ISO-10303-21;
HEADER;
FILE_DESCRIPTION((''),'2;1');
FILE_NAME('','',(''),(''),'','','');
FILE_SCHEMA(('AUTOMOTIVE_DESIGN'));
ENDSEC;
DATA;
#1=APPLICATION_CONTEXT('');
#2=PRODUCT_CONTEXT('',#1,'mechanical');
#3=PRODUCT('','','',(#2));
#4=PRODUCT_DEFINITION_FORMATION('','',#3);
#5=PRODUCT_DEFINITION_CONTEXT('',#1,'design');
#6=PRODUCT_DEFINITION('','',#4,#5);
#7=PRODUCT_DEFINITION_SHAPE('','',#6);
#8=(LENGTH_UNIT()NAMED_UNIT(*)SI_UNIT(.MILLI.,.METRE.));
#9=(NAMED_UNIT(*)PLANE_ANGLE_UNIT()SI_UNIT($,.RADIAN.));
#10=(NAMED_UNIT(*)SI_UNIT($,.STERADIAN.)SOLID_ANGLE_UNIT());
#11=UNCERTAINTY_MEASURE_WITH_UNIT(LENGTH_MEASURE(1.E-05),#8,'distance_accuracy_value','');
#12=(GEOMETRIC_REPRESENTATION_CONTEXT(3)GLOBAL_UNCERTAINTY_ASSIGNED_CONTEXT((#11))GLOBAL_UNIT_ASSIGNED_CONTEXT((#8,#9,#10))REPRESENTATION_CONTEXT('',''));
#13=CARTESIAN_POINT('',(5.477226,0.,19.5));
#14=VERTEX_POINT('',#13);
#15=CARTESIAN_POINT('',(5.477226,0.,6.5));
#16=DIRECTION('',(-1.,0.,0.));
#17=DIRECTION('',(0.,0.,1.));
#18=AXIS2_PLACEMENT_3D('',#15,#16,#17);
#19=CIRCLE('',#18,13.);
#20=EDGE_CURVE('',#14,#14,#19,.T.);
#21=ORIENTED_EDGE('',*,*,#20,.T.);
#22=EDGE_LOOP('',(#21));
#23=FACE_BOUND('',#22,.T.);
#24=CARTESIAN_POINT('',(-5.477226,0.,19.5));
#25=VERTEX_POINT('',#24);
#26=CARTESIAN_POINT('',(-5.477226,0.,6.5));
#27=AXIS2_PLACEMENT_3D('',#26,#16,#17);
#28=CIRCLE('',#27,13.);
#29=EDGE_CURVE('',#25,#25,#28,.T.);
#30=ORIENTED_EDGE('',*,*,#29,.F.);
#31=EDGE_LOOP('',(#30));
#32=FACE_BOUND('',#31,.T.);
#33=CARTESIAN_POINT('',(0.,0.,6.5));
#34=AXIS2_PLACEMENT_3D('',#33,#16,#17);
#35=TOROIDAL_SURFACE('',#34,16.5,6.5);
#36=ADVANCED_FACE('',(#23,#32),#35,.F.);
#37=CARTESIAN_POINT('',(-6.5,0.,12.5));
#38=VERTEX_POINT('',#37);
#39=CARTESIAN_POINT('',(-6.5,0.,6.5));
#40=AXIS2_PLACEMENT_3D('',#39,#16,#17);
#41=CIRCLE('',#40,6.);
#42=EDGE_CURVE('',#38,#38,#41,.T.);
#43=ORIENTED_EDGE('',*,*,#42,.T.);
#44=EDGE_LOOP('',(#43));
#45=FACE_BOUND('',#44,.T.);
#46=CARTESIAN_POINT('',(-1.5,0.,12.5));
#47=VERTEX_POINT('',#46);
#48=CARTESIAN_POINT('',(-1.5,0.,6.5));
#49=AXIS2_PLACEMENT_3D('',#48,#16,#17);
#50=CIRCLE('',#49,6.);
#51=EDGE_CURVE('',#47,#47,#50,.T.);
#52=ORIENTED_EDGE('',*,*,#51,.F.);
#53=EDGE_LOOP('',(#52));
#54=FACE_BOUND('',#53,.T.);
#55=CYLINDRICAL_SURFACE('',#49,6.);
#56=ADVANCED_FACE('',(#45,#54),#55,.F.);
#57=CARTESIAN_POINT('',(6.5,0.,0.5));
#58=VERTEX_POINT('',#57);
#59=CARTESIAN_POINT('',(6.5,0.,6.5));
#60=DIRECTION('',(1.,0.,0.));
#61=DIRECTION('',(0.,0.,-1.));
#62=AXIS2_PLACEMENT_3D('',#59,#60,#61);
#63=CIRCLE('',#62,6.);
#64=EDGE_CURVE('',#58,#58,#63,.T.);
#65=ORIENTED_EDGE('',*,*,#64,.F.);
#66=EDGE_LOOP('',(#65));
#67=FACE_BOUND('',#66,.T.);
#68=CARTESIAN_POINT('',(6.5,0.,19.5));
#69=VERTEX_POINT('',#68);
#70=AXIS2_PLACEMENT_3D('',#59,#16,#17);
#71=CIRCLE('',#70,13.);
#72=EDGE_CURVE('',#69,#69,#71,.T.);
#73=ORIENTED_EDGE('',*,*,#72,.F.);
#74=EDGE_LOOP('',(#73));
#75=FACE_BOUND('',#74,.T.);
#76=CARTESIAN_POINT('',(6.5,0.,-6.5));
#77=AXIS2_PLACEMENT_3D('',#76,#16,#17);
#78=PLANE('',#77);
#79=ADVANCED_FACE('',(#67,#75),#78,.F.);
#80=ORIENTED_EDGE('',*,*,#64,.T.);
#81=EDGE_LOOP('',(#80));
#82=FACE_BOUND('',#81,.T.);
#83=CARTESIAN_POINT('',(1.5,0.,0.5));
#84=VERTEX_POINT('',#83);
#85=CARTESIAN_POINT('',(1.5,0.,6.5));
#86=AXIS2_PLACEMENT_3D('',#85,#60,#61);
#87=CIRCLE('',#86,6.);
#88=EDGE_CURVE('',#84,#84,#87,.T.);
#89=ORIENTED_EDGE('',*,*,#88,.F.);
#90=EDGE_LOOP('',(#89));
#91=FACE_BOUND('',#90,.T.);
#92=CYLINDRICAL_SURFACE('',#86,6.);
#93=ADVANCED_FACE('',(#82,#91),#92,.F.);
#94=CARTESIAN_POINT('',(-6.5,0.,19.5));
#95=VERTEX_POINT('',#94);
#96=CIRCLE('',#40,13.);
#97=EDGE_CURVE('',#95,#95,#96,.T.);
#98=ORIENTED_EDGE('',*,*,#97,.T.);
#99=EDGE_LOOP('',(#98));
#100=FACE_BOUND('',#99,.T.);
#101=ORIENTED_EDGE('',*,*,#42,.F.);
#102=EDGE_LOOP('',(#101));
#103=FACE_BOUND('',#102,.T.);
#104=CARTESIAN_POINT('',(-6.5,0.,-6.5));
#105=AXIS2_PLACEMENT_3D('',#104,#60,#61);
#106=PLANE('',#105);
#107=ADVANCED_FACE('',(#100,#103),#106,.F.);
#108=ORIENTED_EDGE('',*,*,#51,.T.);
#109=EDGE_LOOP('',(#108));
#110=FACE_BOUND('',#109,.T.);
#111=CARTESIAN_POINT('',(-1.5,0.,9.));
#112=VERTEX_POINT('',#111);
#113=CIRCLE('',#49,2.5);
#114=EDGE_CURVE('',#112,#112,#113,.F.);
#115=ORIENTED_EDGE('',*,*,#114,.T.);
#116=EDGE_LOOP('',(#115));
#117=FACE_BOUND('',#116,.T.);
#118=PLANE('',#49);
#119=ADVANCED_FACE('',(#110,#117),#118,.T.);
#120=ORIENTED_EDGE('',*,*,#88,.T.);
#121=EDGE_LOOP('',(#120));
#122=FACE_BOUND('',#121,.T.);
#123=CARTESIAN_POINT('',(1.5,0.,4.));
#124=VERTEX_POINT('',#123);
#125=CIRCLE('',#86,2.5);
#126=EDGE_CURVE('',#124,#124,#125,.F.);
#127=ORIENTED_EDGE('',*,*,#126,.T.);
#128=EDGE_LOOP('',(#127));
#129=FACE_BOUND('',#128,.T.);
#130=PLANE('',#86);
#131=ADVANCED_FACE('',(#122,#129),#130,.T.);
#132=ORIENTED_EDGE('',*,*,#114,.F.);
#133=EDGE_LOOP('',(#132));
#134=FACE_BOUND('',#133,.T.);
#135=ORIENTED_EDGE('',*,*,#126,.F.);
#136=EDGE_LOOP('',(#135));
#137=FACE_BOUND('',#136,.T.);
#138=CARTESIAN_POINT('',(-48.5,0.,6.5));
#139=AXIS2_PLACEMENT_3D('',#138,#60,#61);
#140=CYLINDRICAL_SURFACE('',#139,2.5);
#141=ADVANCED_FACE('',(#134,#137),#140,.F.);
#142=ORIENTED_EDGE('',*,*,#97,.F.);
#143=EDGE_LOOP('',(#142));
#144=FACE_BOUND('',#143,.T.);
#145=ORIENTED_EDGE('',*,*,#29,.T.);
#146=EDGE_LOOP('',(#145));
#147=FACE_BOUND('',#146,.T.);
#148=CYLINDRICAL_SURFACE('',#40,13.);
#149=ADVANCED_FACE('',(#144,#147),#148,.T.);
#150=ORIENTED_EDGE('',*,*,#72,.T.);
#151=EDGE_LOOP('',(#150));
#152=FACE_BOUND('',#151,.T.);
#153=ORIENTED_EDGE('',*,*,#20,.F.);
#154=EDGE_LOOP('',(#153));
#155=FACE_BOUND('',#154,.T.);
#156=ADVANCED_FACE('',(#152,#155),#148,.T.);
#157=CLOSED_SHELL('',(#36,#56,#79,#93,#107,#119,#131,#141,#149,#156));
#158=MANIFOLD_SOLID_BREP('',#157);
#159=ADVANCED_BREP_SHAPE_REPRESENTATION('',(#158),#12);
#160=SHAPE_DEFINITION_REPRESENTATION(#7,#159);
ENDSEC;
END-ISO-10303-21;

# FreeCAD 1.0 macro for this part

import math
import FreeCAD as App
import Part
import Sketcher
from FreeCAD import Vector

doc = App.newDocument("Part")
body = doc.addObject("PartDesign::Body", "Body")

# Sketch on XZ plane
sketch1 = doc.addObject("Sketcher::SketchObject", "Sketch")
body.addObject(sketch1)
sketch1.AttachmentSupport = (doc.XZ_Plane, [""])
sketch1.MapMode = "FlatFace"
sketch1.addGeometry(Part.LineSegment(Vector(-6.5, -6.5, 0), Vector(-6.5, 6.5, 0)), False)
sketch1.addGeometry(Part.LineSegment(Vector(-6.5, 6.5, 0), Vector(6.5, 6.5, 0)), False)
sketch1.addGeometry(Part.LineSegment(Vector(6.5, 6.5, 0), Vector(6.5, -6.5, 0)), False)
sketch1.addGeometry(Part.LineSegment(Vector(6.5, -6.5, 0), Vector(5.5, -6.5, 0)), False)
sketch1.addGeometry(Part.ArcOfCircle(Part.Circle(Vector(0, -10, 0), Vector(0, 0, 1), 6.5), math.radians(33), math.radians(147)), False)
sketch1.addGeometry(Part.LineSegment(Vector(-5.5, -6.5, 0), Vector(-6.5, -6.5, 0)), False)
sketch1.addGeometry(Part.LineSegment(Vector(-6.5, 6.5, 0), Vector(6.5, 6.5, 0)), True)  # axis
sketch1.addConstraint(Sketcher.Constraint("Coincident", 0, 2, 1, 1))
sketch1.addConstraint(Sketcher.Constraint("Coincident", 1, 2, 2, 1))
sketch1.addConstraint(Sketcher.Constraint("Coincident", 2, 2, 3, 1))
sketch1.addConstraint(Sketcher.Constraint("Coincident", 3, 2, 4, 1))
sketch1.addConstraint(Sketcher.Constraint("Coincident", 4, 2, 5, 1))
sketch1.addConstraint(Sketcher.Constraint("Coincident", 5, 2, 0, 1))
sketch1.addConstraint(Sketcher.Constraint("Vertical", 0))
sketch1.addConstraint(Sketcher.Constraint("Horizontal", 1))
sketch1.addConstraint(Sketcher.Constraint("Vertical", 2))
sketch1.addConstraint(Sketcher.Constraint("Horizontal", 3))
sketch1.addConstraint(Sketcher.Constraint("Horizontal", 5))
sketch1.addConstraint(Sketcher.Constraint("Horizontal", 6))
sketch1.addConstraint(Sketcher.Constraint("Coincident", 6, 1, 0, 2))
sketch1.addConstraint(Sketcher.Constraint("Symmetric", 0, 2, 2, 2, -1, 1))
sketch1.addConstraint(Sketcher.Constraint("Symmetric", 5, 2, 6, 2, -1, 1))
sketch1.addConstraint(Sketcher.Constraint("PointOnObject", 4, 3, -2))
sketch1.addConstraint(Sketcher.Constraint("Equal", 6, 0))
sketch1.addConstraint(Sketcher.Constraint("Radius", 4, 6.5))
sketch1.addConstraint(Sketcher.Constraint("DistanceX", 1, 1, 1, 2, 13.0))
sketch1.addConstraint(Sketcher.Constraint("DistanceY", 4, 3, -1, 1, 10.0))
revolution = doc.addObject("PartDesign::Revolution", "Revolution")
body.addObject(revolution)
revolution.Profile = sketch1
revolution.ReferenceAxis = (sketch1, ["Axis0"])
revolution.Angle = 360

# Sketch on YZ plane
sketch2 = doc.addObject("Sketcher::SketchObject", "Sketch001")
body.addObject(sketch2)
sketch2.AttachmentSupport = (doc.YZ_Plane, [""])
sketch2.MapMode = "FlatFace"
sketch2.AttachmentOffset = App.Placement(Vector(0, 0, 6.5), App.Rotation())
sketch2.addGeometry(Part.Circle(Vector(0, 6.5, 0), Vector(0, 0, 1), 2.5), False)
sketch2.addConstraint(Sketcher.Constraint("PointOnObject", 0, 3, -2))
sketch2.addConstraint(Sketcher.Constraint("Diameter", 0, 5.0))
sketch2.addConstraint(Sketcher.Constraint("DistanceY", -1, 1, 0, 3, 6.5))
pocket1 = doc.addObject("PartDesign::Pocket", "Pocket")
body.addObject(pocket1)
pocket1.Profile = sketch2
pocket1.Length = 55

# Sketch on YZ plane
sketch3 = doc.addObject("Sketcher::SketchObject", "Sketch002")
body.addObject(sketch3)
sketch3.AttachmentSupport = (doc.YZ_Plane, [""])
sketch3.MapMode = "FlatFace"
sketch3.AttachmentOffset = App.Placement(Vector(0, 0, 6.5), App.Rotation())
sketch3.addGeometry(Part.Circle(Vector(0, 6, 0), Vector(0, 0, 1), 6), False)
sketch3.addConstraint(Sketcher.Constraint("PointOnObject", 0, 3, -2))
sketch3.addConstraint(Sketcher.Constraint("Diameter", 0, 12.0))
sketch3.addConstraint(Sketcher.Constraint("DistanceY", -1, 1, 0, 3, 6.5))
pocket2 = doc.addObject("PartDesign::Pocket", "Pocket001")
body.addObject(pocket2)
pocket2.Profile = sketch3
pocket2.Length = 5

# Sketch on YZ plane
sketch4 = doc.addObject("Sketcher::SketchObject", "Sketch003")
body.addObject(sketch4)
sketch4.AttachmentSupport = (doc.YZ_Plane, [""])
sketch4.MapMode = "FlatFace"
sketch4.AttachmentOffset = App.Placement(Vector(0, 0, -1.5), App.Rotation())
sketch4.addGeometry(Part.Circle(Vector(0, 6, 0), Vector(0, 0, 1), 6), False)
sketch4.addConstraint(Sketcher.Constraint("PointOnObject", 0, 3, -2))
sketch4.addConstraint(Sketcher.Constraint("Diameter", 0, 12.0))
sketch4.addConstraint(Sketcher.Constraint("DistanceY", -1, 1, 0, 3, 6.5))
pocket3 = doc.addObject("PartDesign::Pocket", "Pocket002")
body.addObject(pocket3)
pocket3.Profile = sketch4
pocket3.Length = 5

doc.recompute()
